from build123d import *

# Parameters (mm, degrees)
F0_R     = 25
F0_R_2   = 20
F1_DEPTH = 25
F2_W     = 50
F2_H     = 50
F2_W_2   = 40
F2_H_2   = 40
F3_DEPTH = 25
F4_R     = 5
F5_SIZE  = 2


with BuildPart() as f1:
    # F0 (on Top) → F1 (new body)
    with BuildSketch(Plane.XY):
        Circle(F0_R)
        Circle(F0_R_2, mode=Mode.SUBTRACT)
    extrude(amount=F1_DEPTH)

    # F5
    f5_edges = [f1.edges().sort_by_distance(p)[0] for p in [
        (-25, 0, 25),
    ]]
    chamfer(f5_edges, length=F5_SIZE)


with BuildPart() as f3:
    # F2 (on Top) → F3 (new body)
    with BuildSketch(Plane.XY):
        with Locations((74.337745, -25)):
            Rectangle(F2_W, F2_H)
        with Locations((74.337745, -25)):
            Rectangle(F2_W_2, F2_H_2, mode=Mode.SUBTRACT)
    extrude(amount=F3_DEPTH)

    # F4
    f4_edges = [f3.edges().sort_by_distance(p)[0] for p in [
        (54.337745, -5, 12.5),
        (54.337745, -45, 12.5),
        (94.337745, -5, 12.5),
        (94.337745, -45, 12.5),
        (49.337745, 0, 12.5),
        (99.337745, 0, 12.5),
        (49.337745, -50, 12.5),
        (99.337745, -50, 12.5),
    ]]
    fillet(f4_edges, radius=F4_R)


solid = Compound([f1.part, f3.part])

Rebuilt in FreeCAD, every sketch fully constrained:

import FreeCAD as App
import Part
import Sketcher
from FreeCAD import Vector
Q = App.Units.Quantity


def edges_at(feature, points):
    """Names of the edges that pass closest to the given points."""
    edges = feature.Shape.Edges
    near = lambda p: min(range(len(edges)), key=lambda i: edges[i].distToShape(Part.Vertex(*p))[0])
    return sorted({f"Edge{near(p) + 1}" for p in points})


def add_polygon(sketch, points):
    """Adds a closed chain of lines whose ends are joined by coincident constraints."""
    first, n = sketch.GeometryCount, len(points)
    for a, b in zip(points, points[1:] + points[:1]):
        sketch.addGeometry(Part.LineSegment(App.Vector(*a, 0), App.Vector(*b, 0)), False)
    for i in range(n):
        sketch.addConstraint(Sketcher.Constraint("Coincident", first + i, 2, first + (i + 1) % n, 1))

doc = App.newDocument("Part")
body = doc.addObject("PartDesign::Body", "Body")

sketch1 = body.newObject("Sketcher::SketchObject", "Sketch")
sketch1.AttachmentSupport = (doc.getObject("XY_Plane"), [""])
sketch1.MapMode = "FlatFace"
sketch1.addGeometry([
    Part.Circle(Vector(0, 0, 0), Vector(0, 0, 1), 25),
    Part.Circle(Vector(0, 0, 0), Vector(0, 0, 1), 20),
], False)
sketch1.addConstraint([
    Sketcher.Constraint("Coincident", 0, 3, -1, 1),
    Sketcher.Constraint("Coincident", 1, 3, -1, 1),
    Sketcher.Constraint("Diameter", 0, Q("50 mm")),
    Sketcher.Constraint("Diameter", 1, Q("40 mm")),
])
pad1 = body.newObject("PartDesign::Pad", "Pad")
pad1.Profile = sketch1
pad1.Length = 25
doc.recompute()

chamfer = body.newObject("PartDesign::Chamfer", "Chamfer")
chamfer.Base = (pad1, edges_at(pad1, [(-25, 0, 25)]))
chamfer.Size = 2
body2 = doc.addObject("PartDesign::Body", "Body001")

sketch2 = body2.newObject("Sketcher::SketchObject", "Sketch001")
sketch2.AttachmentSupport = (doc.getObject("XY_Plane001"), [""])
sketch2.MapMode = "FlatFace"
add_polygon(sketch2, [(49, 0), (49, -50), (99, -50), (99, 0)])
add_polygon(sketch2, [(94, -45), (54, -45), (54, -5), (94, -5)])
sketch2.addConstraint([
    Sketcher.Constraint("Vertical", 0),
    Sketcher.Constraint("Horizontal", 1),
    Sketcher.Constraint("Vertical", 2),
    Sketcher.Constraint("Horizontal", 3),
    Sketcher.Constraint("Horizontal", 4),
    Sketcher.Constraint("Vertical", 5),
    Sketcher.Constraint("Horizontal", 6),
    Sketcher.Constraint("Vertical", 7),
    Sketcher.Constraint("PointOnObject", 2, 2, -1),
    Sketcher.Constraint("Equal", 3, 0),
    Sketcher.Constraint("Equal", 6, 5),
    Sketcher.Constraint("DistanceX", 1, 1, 1, 2, Q("50 mm")),
    Sketcher.Constraint("DistanceX", 4, 2, 4, 1, Q("40 mm")),
    Sketcher.Constraint("DistanceY", 4, 2, -1, 1, Q("45 mm")),
    Sketcher.Constraint("DistanceX", 0, 2, 4, 2, Q("5 mm")),
    Sketcher.Constraint("DistanceX", -1, 1, 0, 2, Q("49.337745 mm")),
])
pad2 = body2.newObject("PartDesign::Pad", "Pad001")
pad2.Profile = sketch2
pad2.Length = 25
doc.recompute()

fillet = body2.newObject("PartDesign::Fillet", "Fillet")
fillet.Base = (pad2, edges_at(pad2, [
    (54.338, -5, 12.5),
    (54.338, -45, 12.5),
    (94.338, -5, 12.5),
    (94.338, -45, 12.5),
    (49.338, 0, 12.5),
    (99.338, 0, 12.5),
    (49.338, -50, 12.5),
    (99.338, -50, 12.5),
]))
fillet.Radius = 5

doc.recompute()
